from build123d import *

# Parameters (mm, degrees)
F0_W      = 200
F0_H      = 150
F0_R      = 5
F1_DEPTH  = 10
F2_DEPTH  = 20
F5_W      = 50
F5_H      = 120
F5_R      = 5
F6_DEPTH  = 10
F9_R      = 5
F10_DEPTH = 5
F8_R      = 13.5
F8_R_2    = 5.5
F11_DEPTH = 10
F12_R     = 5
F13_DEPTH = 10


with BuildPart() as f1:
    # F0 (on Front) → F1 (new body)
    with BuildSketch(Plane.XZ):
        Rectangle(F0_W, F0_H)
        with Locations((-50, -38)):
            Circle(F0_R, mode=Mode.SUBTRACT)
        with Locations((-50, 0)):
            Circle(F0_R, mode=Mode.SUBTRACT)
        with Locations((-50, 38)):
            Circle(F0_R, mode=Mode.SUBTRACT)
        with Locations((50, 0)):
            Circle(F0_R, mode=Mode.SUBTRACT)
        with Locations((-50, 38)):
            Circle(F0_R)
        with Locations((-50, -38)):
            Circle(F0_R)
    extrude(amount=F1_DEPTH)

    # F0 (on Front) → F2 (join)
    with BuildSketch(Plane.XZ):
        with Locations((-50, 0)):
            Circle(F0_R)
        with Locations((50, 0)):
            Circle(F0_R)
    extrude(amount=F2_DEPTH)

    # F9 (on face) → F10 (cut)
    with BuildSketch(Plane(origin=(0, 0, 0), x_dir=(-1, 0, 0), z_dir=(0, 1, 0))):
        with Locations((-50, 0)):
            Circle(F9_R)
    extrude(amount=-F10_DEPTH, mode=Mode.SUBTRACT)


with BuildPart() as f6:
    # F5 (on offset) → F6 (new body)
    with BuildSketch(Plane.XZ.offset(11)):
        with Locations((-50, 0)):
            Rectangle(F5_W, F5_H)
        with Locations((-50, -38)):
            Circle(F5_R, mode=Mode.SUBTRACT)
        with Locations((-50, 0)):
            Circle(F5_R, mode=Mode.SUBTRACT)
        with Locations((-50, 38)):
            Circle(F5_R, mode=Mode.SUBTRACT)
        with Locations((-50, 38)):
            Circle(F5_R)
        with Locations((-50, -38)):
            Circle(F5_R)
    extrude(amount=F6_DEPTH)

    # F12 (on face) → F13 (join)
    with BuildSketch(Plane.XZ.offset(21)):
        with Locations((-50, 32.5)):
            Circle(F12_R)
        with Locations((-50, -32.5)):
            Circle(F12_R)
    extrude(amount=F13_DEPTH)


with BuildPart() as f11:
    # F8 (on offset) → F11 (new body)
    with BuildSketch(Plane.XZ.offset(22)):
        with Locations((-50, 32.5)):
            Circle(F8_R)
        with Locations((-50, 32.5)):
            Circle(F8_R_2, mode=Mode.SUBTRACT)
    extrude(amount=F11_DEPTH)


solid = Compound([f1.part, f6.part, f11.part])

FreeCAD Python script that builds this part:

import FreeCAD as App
import Part
import Sketcher


def add_polygon(sketch, points):
    """Adds a closed chain of lines whose ends are joined by coincident constraints."""
    first, n = sketch.GeometryCount, len(points)
    for a, b in zip(points, points[1:] + points[:1]):
        sketch.addGeometry(Part.LineSegment(App.Vector(*a, 0), App.Vector(*b, 0)), False)
    for i in range(n):
        sketch.addConstraint(Sketcher.Constraint("Coincident", first + i, 2, first + (i + 1) % n, 1))

doc = App.newDocument("Part")
params = doc.addObject("Spreadsheet::Sheet", "Params")
for row, (alias, value) in enumerate([
    ("sketch1_diameter", "10 mm"),
    ("sketch1_width", "200 mm"),
    ("sketch1_height", "150 mm"),
    ("pad1_length", "10 mm"),
    ("sketch2_diameter", "10 mm"),
    ("pad2_length", "20 mm"),
    ("sketch3_diameter", "10 mm"),
    ("pocket1_length", "5 mm"),
    ("sketch4_diameter", "10 mm"),
    ("sketch4_width", "50 mm"),
    ("sketch4_height", "120 mm"),
    ("pad3_length", "10 mm"),
    ("sketch5_diameter", "10 mm"),
    ("pad4_length", "10 mm"),
    ("sketch6_diameter", "27 mm"),
    ("sketch6_diameter2", "11 mm"),
    ("pad5_length", "10 mm"),
], start=1):
    params.set(f"A{row}", alias)
    params.set(f"B{row}", "=" + value)
    params.setAlias(f"B{row}", alias)

body = doc.addObject("PartDesign::Body", "Body")

# Sketch on XZ plane
sketch1 = body.newObject("Sketcher::SketchObject", "Sketch")
sketch1.AttachmentSupport = (doc.getObject("XZ_Plane"), [""])
sketch1.MapMode = "FlatFace"
add_polygon(sketch1, [(-100, 75), (-100, -75), (100, -75), (100, 75)])  # lines 0-3
sketch1.addGeometry(Part.Circle(App.Vector(-50, 0, 0), App.Vector(0, 0, 1), 5), False)  # 4
sketch1.addGeometry(Part.Circle(App.Vector(50, 0, 0), App.Vector(0, 0, 1), 5), False)  # 5
sketch1.addConstraint([
    Sketcher.Constraint("Vertical", 0),
    Sketcher.Constraint("Horizontal", 1),
    Sketcher.Constraint("Vertical", 2),
    Sketcher.Constraint("Horizontal", 3),
    Sketcher.Constraint("Equal", 4, 5),
    Sketcher.Constraint("Symmetric", 4, 3, 5, 3, -1, 1),
    Sketcher.Constraint("Symmetric", 0, 2, 2, 2, -1, 1),
    Sketcher.Constraint("PointOnObject", 4, 3, -1),
    Sketcher.Constraint("Diameter", 4, 10.0),
    Sketcher.Constraint("DistanceX", 1, 1, 1, 2, 200.0),
    Sketcher.Constraint("DistanceY", 0, 2, 0, 1, 150.0),
    Sketcher.Constraint("DistanceX", 4, 3, -1, 1, 50.0),
])
sketch1.setExpression("Constraints[12]", "Params.sketch1_diameter")
sketch1.setExpression("Constraints[13]", "Params.sketch1_width")
sketch1.setExpression("Constraints[14]", "Params.sketch1_height")
pad1 = body.newObject("PartDesign::Pad", "Pad")
pad1.Profile = sketch1
pad1.setExpression("Length", "Params.pad1_length")

# Sketch on XZ plane
sketch2 = body.newObject("Sketcher::SketchObject", "Sketch001")
sketch2.AttachmentSupport = (doc.getObject("XZ_Plane"), [""])
sketch2.MapMode = "FlatFace"
sketch2.addGeometry([
    Part.Circle(App.Vector(-50, 0, 0), App.Vector(0, 0, 1), 5),
    Part.Circle(App.Vector(50, 0, 0), App.Vector(0, 0, 1), 5),
], False)
sketch2.addConstraint([
    Sketcher.Constraint("Equal", 0, 1),
    Sketcher.Constraint("Symmetric", 0, 3, 1, 3, -1, 1),
    Sketcher.Constraint("PointOnObject", 0, 3, -1),
    Sketcher.Constraint("Diameter", 0, 10.0),
    Sketcher.Constraint("DistanceX", 0, 3, -1, 1, 50.0),
])
sketch2.setExpression("Constraints[3]", "Params.sketch2_diameter")
pad2 = body.newObject("PartDesign::Pad", "Pad001")
pad2.Profile = sketch2
pad2.setExpression("Length", "Params.pad2_length")

# Sketch on XZ plane
sketch3 = body.newObject("Sketcher::SketchObject", "Sketch002")
sketch3.AttachmentSupport = (doc.getObject("XZ_Plane"), [""])
sketch3.MapMode = "FlatFace"
sketch3.addGeometry(Part.Circle(App.Vector(50, 0, 0), App.Vector(0, 0, 1), 5), False)
sketch3.addConstraint([
    Sketcher.Constraint("PointOnObject", 0, 3, -1),
    Sketcher.Constraint("Diameter", 0, 10.0),
    Sketcher.Constraint("DistanceX", -1, 1, 0, 3, 50.0),
])
sketch3.setExpression("Constraints[1]", "Params.sketch3_diameter")
pocket1 = body.newObject("PartDesign::Pocket", "Pocket")
pocket1.Profile = sketch3
pocket1.setExpression("Length", "Params.pocket1_length")
pocket1.Reversed = True
body2 = doc.addObject("PartDesign::Body", "Body001")

# Sketch on XZ plane
sketch4 = body2.newObject("Sketcher::SketchObject", "Sketch003")
sketch4.AttachmentSupport = (doc.getObject("XZ_Plane001"), [""])
sketch4.MapMode = "FlatFace"
sketch4.AttachmentOffset = App.Placement(App.Vector(0, 0, 11), App.Rotation())
add_polygon(sketch4, [(-75, 60), (-75, -60), (-25, -60), (-25, 60)])  # lines 0-3
sketch4.addGeometry(Part.Circle(App.Vector(-50, 0, 0), App.Vector(0, 0, 1), 5), False)  # 4
sketch4.addConstraint([
    Sketcher.Constraint("Vertical", 0),
    Sketcher.Constraint("Horizontal", 1),
    Sketcher.Constraint("Vertical", 2),
    Sketcher.Constraint("Horizontal", 3),
    Sketcher.Constraint("PointOnObject", 4, 3, -1),
    Sketcher.Constraint("Diameter", 4, 10.0),
    Sketcher.Constraint("DistanceX", 1, 1, 1, 2, 50.0),
    Sketcher.Constraint("DistanceY", 0, 2, 0, 1, 120.0),
    Sketcher.Constraint("DistanceX", 4, 3, -1, 1, 50.0),
    Sketcher.Constraint("DistanceX", 0, 2, -1, 1, 75.0),
    Sketcher.Constraint("DistanceY", 0, 2, -1, 1, 60.0),
])
sketch4.setExpression("Constraints[9]", "Params.sketch4_diameter")
sketch4.setExpression("Constraints[10]", "Params.sketch4_width")
sketch4.setExpression("Constraints[11]", "Params.sketch4_height")
pad3 = body2.newObject("PartDesign::Pad", "Pad002")
pad3.Profile = sketch4
pad3.setExpression("Length", "Params.pad3_length")

# Sketch on XZ plane
sketch5 = body2.newObject("Sketcher::SketchObject", "Sketch004")
sketch5.AttachmentSupport = (doc.getObject("XZ_Plane001"), [""])
sketch5.MapMode = "FlatFace"
sketch5.AttachmentOffset = App.Placement(App.Vector(0, 0, 21), App.Rotation())
sketch5.addGeometry([
    Part.Circle(App.Vector(-50, 32.5, 0), App.Vector(0, 0, 1), 5),
    Part.Circle(App.Vector(-50, -32.5, 0), App.Vector(0, 0, 1), 5),
], False)
sketch5.addConstraint([
    Sketcher.Constraint("Equal", 0, 1),
    Sketcher.Constraint("Symmetric", 0, 3, 1, 3, -1),
    Sketcher.Constraint("Diameter", 0, 10.0),
    Sketcher.Constraint("DistanceX", 0, 3, -1, 1, 50.0),
    Sketcher.Constraint("DistanceY", 1, 3, 0, 3, 65.0),
])
sketch5.setExpression("Constraints[2]", "Params.sketch5_diameter")
pad4 = body2.newObject("PartDesign::Pad", "Pad003")
pad4.Profile = sketch5
pad4.setExpression("Length", "Params.pad4_length")
body3 = doc.addObject("PartDesign::Body", "Body002")

# Sketch on XZ plane
sketch6 = body3.newObject("Sketcher::SketchObject", "Sketch005")
sketch6.AttachmentSupport = (doc.getObject("XZ_Plane002"), [""])
sketch6.MapMode = "FlatFace"
sketch6.AttachmentOffset = App.Placement(App.Vector(0, 0, 22), App.Rotation())
sketch6.addGeometry([
    Part.Circle(App.Vector(-50, 32.5, 0), App.Vector(0, 0, 1), 13.5),
    Part.Circle(App.Vector(-50, 32.5, 0), App.Vector(0, 0, 1), 5.5),
], False)
sketch6.addConstraint([
    Sketcher.Constraint("Coincident", 1, 3, 0, 3),
    Sketcher.Constraint("Diameter", 0, 27.0),
    Sketcher.Constraint("Diameter", 1, 11.0),
    Sketcher.Constraint("DistanceX", 0, 3, -1, 1, 50.0),
    Sketcher.Constraint("DistanceY", -1, 1, 0, 3, 32.5),
])
sketch6.setExpression("Constraints[1]", "Params.sketch6_diameter")
sketch6.setExpression("Constraints[2]", "Params.sketch6_diameter2")
pad5 = body3.newObject("PartDesign::Pad", "Pad004")
pad5.Profile = sketch6
pad5.setExpression("Length", "Params.pad5_length")

doc.recompute()
